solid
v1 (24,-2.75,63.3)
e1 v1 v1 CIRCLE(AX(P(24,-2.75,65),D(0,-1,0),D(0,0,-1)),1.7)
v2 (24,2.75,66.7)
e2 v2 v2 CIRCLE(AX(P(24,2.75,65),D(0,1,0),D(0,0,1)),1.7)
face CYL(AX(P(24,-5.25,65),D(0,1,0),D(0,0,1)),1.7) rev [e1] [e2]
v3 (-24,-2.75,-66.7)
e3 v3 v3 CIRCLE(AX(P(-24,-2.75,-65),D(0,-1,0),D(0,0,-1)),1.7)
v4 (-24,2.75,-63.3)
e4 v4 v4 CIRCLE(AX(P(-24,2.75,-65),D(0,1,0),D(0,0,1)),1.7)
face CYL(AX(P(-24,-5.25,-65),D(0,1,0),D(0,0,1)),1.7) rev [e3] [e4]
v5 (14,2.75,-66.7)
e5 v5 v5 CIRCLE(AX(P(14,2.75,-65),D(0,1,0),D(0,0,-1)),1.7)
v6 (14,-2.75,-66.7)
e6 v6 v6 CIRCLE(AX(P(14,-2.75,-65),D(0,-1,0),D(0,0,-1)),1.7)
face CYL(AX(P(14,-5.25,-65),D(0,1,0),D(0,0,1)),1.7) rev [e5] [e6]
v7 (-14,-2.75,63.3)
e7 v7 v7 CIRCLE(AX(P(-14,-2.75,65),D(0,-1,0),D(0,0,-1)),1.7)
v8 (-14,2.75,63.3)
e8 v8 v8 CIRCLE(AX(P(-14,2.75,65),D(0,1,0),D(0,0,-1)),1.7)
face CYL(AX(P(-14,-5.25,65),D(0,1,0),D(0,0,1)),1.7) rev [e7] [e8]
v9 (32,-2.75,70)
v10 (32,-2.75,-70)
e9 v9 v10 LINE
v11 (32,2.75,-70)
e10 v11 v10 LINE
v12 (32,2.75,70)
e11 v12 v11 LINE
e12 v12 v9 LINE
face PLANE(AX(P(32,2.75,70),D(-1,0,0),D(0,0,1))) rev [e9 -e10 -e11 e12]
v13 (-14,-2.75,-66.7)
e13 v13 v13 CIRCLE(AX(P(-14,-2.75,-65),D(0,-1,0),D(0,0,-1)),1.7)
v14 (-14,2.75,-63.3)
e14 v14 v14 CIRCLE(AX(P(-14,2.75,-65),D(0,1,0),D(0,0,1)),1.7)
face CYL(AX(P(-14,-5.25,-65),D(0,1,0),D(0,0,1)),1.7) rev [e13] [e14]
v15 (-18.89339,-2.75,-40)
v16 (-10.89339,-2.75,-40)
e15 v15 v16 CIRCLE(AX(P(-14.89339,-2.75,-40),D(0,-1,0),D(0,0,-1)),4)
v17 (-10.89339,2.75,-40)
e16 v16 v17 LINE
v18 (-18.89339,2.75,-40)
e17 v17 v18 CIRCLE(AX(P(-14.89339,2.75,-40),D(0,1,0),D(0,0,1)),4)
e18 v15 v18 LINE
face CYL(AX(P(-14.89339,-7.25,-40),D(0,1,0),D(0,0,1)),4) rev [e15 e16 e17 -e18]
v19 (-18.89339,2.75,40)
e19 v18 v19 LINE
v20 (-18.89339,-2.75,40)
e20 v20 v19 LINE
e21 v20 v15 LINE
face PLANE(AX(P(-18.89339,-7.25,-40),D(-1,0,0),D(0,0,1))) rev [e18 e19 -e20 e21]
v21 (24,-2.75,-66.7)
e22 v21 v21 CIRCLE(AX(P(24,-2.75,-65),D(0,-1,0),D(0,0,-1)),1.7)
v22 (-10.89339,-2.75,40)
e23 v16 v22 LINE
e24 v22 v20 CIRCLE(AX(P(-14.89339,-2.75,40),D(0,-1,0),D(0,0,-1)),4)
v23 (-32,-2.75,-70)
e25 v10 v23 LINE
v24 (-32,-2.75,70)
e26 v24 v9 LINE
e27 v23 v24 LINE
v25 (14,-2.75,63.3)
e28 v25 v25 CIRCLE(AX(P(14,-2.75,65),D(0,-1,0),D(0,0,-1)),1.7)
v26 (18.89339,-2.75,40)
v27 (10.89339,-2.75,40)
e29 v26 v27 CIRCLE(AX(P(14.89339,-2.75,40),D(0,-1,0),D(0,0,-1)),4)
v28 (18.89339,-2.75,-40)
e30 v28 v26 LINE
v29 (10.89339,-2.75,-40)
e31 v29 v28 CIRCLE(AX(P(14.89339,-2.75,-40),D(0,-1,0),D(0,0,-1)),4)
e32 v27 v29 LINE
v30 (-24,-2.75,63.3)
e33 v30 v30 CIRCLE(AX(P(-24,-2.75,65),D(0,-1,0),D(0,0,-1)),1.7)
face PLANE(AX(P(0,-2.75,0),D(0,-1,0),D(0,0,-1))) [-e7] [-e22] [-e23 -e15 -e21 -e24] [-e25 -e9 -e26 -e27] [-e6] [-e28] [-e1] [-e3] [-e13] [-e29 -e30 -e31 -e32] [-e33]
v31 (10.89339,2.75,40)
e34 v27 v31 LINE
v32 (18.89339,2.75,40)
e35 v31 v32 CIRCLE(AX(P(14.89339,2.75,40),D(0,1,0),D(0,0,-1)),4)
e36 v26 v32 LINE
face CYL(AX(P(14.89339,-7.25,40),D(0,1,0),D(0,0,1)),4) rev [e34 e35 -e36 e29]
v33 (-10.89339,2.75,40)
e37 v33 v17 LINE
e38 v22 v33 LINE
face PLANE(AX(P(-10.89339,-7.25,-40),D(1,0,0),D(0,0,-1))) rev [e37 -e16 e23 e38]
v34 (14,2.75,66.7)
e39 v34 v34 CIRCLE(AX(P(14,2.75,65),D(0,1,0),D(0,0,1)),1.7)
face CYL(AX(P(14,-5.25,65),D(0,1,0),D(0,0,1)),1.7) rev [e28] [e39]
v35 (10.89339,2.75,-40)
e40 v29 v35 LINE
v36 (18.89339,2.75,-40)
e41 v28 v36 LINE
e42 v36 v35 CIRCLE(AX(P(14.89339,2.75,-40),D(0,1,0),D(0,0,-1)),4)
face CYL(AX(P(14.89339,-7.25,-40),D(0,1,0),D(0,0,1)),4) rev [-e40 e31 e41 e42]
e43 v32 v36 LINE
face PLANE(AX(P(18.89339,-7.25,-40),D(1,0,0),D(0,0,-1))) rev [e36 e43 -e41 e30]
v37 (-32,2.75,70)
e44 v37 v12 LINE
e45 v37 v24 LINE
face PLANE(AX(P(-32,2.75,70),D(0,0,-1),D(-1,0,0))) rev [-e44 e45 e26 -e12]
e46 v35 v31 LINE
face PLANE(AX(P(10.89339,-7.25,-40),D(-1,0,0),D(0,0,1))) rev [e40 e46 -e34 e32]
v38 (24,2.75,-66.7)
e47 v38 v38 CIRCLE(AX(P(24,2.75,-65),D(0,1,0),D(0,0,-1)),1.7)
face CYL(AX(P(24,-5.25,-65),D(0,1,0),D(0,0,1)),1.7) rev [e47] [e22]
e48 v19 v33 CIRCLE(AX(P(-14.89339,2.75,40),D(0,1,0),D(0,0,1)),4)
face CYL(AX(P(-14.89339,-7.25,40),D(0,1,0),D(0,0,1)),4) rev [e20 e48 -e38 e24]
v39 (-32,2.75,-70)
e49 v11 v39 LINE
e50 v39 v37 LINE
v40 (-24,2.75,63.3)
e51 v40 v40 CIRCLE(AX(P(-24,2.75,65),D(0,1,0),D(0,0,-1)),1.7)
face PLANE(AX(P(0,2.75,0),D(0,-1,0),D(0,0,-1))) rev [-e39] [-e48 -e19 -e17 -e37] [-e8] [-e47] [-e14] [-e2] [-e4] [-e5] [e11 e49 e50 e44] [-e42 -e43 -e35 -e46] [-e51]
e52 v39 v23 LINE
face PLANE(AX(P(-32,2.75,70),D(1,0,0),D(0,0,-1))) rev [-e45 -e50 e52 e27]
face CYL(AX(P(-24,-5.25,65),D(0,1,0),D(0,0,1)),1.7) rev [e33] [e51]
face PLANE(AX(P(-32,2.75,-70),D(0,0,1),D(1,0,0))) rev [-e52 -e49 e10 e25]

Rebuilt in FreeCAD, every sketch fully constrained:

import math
import FreeCAD as App
import Part
import Sketcher

V = App.Vector

doc = App.newDocument("Part")
body = doc.addObject("PartDesign::Body", "Body")

# Sketch on XZ plane
sketch1 = body.newObject("Sketcher::SketchObject", "Sketch")
sketch1.AttachmentSupport = (doc.getObject("XZ_Plane"), [""])
sketch1.MapMode = "FlatFace"
sketch1.addGeometry([
    Part.LineSegment(V(-32, -70, 0), V(-32, 70, 0)),
    Part.LineSegment(V(-32, 70, 0), V(32, 70, 0)),
    Part.LineSegment(V(32, 70, 0), V(32, -70, 0)),
    Part.LineSegment(V(32, -70, 0), V(-32, -70, 0)),
], False)
sketch1.addConstraint([
    Sketcher.Constraint("Coincident", 0, 2, 1, 1),
    Sketcher.Constraint("Coincident", 1, 2, 2, 1),
    Sketcher.Constraint("Coincident", 2, 2, 3, 1),
    Sketcher.Constraint("Coincident", 3, 2, 0, 1),
    Sketcher.Constraint("Vertical", 0),
    Sketcher.Constraint("Horizontal", 1),
    Sketcher.Constraint("Vertical", 2),
    Sketcher.Constraint("Horizontal", 3),
    Sketcher.Constraint("Symmetric", 0, 2, 2, 2, -1, 1),
    Sketcher.Constraint("DistanceX", 1, 1, 1, 2, 64.0),
    Sketcher.Constraint("DistanceY", 0, 1, 0, 2, 140.0),
])
pad1 = body.newObject("PartDesign::Pad", "Pad")
pad1.Profile = sketch1
pad1.Length = 5.5
pad1.Midplane = True

# Sketch on XZ plane
sketch2 = body.newObject("Sketcher::SketchObject", "Sketch001")
sketch2.AttachmentSupport = (doc.getObject("XZ_Plane"), [""])
sketch2.MapMode = "FlatFace"
sketch2.AttachmentOffset = App.Placement(V(0, 0, -2.75), App.Rotation())
sketch2.addGeometry([
    Part.Circle(V(-24, -65, 0), V(0, 0, 1), 1.7),  # 0
    Part.Circle(V(-24, 65, 0), V(0, 0, 1), 1.7),  # 1
    Part.Circle(V(24, 65, 0), V(0, 0, 1), 1.7),  # 2
    Part.Circle(V(24, -65, 0), V(0, 0, 1), 1.7),  # 3
    Part.Circle(V(-14, -65, 0), V(0, 0, 1), 1.7),  # 4
    Part.Circle(V(-14, 65, 0), V(0, 0, 1), 1.7),  # 5
    Part.Circle(V(14, 65, 0), V(0, 0, 1), 1.7),  # 6
    Part.Circle(V(14, -65, 0), V(0, 0, 1), 1.7),  # 7
], False)
sketch2.addConstraint([
    Sketcher.Constraint("Equal", 0, 1),
    Sketcher.Constraint("Equal", 1, 2),
    Sketcher.Constraint("Equal", 2, 3),
    Sketcher.Constraint("Equal", 3, 4),
    Sketcher.Constraint("Equal", 4, 5),
    Sketcher.Constraint("Equal", 5, 6),
    Sketcher.Constraint("Equal", 6, 7),
    Sketcher.Constraint("Symmetric", 0, 3, 2, 3, -1, 1),
    Sketcher.Constraint("Symmetric", 1, 3, 3, 3, -1, 1),
    Sketcher.Constraint("Symmetric", 4, 3, 6, 3, -1, 1),
    Sketcher.Constraint("Symmetric", 5, 3, 7, 3, -1, 1),
    Sketcher.Constraint("Symmetric", 1, 3, 2, 3, -2),
    Sketcher.Constraint("Symmetric", 5, 3, 6, 3, -2),
    Sketcher.Constraint("Horizontal", 3, 3, 4, 3),
    Sketcher.Constraint("Diameter", 0, 3.4),
    Sketcher.Constraint("DistanceX", 0, 3, -1, 1, 24.0),
    Sketcher.Constraint("DistanceY", 0, 3, -1, 1, 65.0),
    Sketcher.Constraint("DistanceX", 4, 3, -1, 1, 14.0),
])
pocket1 = body.newObject("PartDesign::Pocket", "Pocket")
pocket1.Profile = sketch2
pocket1.Length = 8
pocket1.Reversed = True

# Sketch on XZ plane
sketch3 = body.newObject("Sketcher::SketchObject", "Sketch002")
sketch3.AttachmentSupport = (doc.getObject("XZ_Plane"), [""])
sketch3.MapMode = "FlatFace"
sketch3.AttachmentOffset = App.Placement(V(0, 0, -2.75), App.Rotation())
sketch3.addGeometry([
    Part.LineSegment(V(-10.89339, 40, 0), V(-10.89339, -40, 0)),  # 0
    Part.ArcOfCircle(Part.Circle(V(-14.89339, -40, 0), V(0, 0, 1), 4), math.radians(180), math.radians(360)),  # 1
    Part.LineSegment(V(-18.89339, -40, 0), V(-18.89339, 40, 0)),  # 2
    Part.ArcOfCircle(Part.Circle(V(-14.89339, 40, 0), V(0, 0, 1), 4), math.radians(0), math.radians(180)),  # 3
    Part.LineSegment(V(10.89339, -40, 0), V(10.89339, 40, 0)),  # 4
    Part.ArcOfCircle(Part.Circle(V(14.89339, 40, 0), V(0, 0, 1), 4), math.radians(0), math.radians(180)),  # 5
    Part.LineSegment(V(18.89339, 40, 0), V(18.89339, -40, 0)),  # 6
    Part.ArcOfCircle(Part.Circle(V(14.89339, -40, 0), V(0, 0, 1), 4), math.radians(180), math.radians(360)),  # 7
], False)
sketch3.addConstraint([
    Sketcher.Constraint("Tangent", 0, 2, 1, 2),
    Sketcher.Constraint("Tangent", 1, 1, 2, 1),
    Sketcher.Constraint("Tangent", 2, 2, 3, 2),
    Sketcher.Constraint("Tangent", 3, 1, 0, 1),
    Sketcher.Constraint("Tangent", 4, 2, 5, 2),
    Sketcher.Constraint("Tangent", 5, 1, 6, 1),
    Sketcher.Constraint("Tangent", 6, 2, 7, 2),
    Sketcher.Constraint("Tangent", 7, 1, 4, 1),
    Sketcher.Constraint("Vertical", 0),
    Sketcher.Constraint("Vertical", 2),
    Sketcher.Constraint("Vertical", 4),
    Sketcher.Constraint("Vertical", 6),
    Sketcher.Constraint("Equal", 3, 5),
    Sketcher.Constraint("Symmetric", 1, 3, 5, 3, -1, 1),
    Sketcher.Constraint("Horizontal", 3, 3, 5, 3),
    Sketcher.Constraint("Horizontal", 1, 3, 7, 3),
    Sketcher.Constraint("Radius", 1, 4.0),
    Sketcher.Constraint("DistanceY", 0, 2, 0, 1, 80.0),
    Sketcher.Constraint("DistanceX", 1, 3, -1, 1, 14.89339),
])
pocket2 = body.newObject("PartDesign::Pocket", "Pocket001")
pocket2.Profile = sketch3
pocket2.Length = 10
pocket2.Reversed = True

doc.recompute()
